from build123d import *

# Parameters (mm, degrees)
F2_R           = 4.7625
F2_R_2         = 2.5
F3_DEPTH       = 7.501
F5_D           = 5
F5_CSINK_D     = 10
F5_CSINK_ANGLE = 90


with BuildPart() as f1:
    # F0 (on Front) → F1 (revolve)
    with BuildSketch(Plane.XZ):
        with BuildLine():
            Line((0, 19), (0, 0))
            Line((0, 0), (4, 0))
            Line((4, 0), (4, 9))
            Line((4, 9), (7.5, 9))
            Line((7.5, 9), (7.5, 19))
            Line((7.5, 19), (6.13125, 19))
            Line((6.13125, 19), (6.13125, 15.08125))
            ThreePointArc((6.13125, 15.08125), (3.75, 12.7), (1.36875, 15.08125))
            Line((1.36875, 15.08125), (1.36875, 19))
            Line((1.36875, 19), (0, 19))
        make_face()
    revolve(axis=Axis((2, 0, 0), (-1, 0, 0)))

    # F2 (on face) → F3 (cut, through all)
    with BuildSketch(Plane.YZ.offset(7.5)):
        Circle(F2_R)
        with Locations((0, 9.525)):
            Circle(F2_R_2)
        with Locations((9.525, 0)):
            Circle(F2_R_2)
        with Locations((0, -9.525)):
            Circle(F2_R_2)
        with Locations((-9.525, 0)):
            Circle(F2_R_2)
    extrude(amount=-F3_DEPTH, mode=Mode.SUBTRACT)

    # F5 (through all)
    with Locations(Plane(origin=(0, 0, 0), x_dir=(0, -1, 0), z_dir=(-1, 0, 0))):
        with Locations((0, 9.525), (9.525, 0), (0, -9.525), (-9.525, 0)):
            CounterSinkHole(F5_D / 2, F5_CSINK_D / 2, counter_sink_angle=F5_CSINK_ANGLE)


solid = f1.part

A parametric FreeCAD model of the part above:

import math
import FreeCAD as App
import Part
import Sketcher
from FreeCAD import Vector
Q = App.Units.Quantity

doc = App.newDocument("Part")
body = doc.addObject("PartDesign::Body", "Body")

# Sketch on XZ plane
sketch1 = body.newObject("Sketcher::SketchObject", "Sketch")
sketch1.AttachmentSupport = (doc.getObject("XZ_Plane"), [""])
sketch1.MapMode = "FlatFace"
sketch1.addGeometry(Part.LineSegment(Vector(0, 19, 0), Vector(0, 0, 0)), False)
sketch1.addGeometry(Part.LineSegment(Vector(0, 0, 0), Vector(4, 0, 0)), False)
sketch1.addGeometry(Part.LineSegment(Vector(4, 0, 0), Vector(4, 9, 0)), False)
sketch1.addGeometry(Part.LineSegment(Vector(4, 9, 0), Vector(7.5, 9, 0)), False)
sketch1.addGeometry(Part.LineSegment(Vector(7.5, 9, 0), Vector(7.5, 19, 0)), False)
sketch1.addGeometry(Part.LineSegment(Vector(7.5, 19, 0), Vector(6.1, 19, 0)), False)
sketch1.addGeometry(Part.LineSegment(Vector(6.1, 19, 0), Vector(6.1, 15.1, 0)), False)
sketch1.addGeometry(Part.ArcOfCircle(Part.Circle(Vector(3.8, 15.1, 0), Vector(0, 0, 1), 2.4), math.radians(180), math.radians(360)), False)
sketch1.addGeometry(Part.LineSegment(Vector(1.4, 15.1, 0), Vector(1.4, 19, 0)), False)
sketch1.addGeometry(Part.LineSegment(Vector(1.4, 19, 0), Vector(0, 19, 0)), False)
sketch1.addConstraint(Sketcher.Constraint("Coincident", 0, 2, 1, 1))
sketch1.addConstraint(Sketcher.Constraint("Coincident", 1, 2, 2, 1))
sketch1.addConstraint(Sketcher.Constraint("Coincident", 2, 2, 3, 1))
sketch1.addConstraint(Sketcher.Constraint("Coincident", 3, 2, 4, 1))
sketch1.addConstraint(Sketcher.Constraint("Coincident", 4, 2, 5, 1))
sketch1.addConstraint(Sketcher.Constraint("Coincident", 5, 2, 6, 1))
sketch1.addConstraint(Sketcher.Constraint("Tangent", 6, 2, 7, 2))
sketch1.addConstraint(Sketcher.Constraint("Tangent", 7, 1, 8, 1))
sketch1.addConstraint(Sketcher.Constraint("Coincident", 8, 2, 9, 1))
sketch1.addConstraint(Sketcher.Constraint("Coincident", 9, 2, 0, 1))
sketch1.addConstraint(Sketcher.Constraint("Vertical", 0))
sketch1.addConstraint(Sketcher.Constraint("Horizontal", 1))
sketch1.addConstraint(Sketcher.Constraint("Vertical", 2))
sketch1.addConstraint(Sketcher.Constraint("Horizontal", 3))
sketch1.addConstraint(Sketcher.Constraint("Vertical", 4))
sketch1.addConstraint(Sketcher.Constraint("Horizontal", 5))
sketch1.addConstraint(Sketcher.Constraint("Vertical", 6))
sketch1.addConstraint(Sketcher.Constraint("Vertical", 8))
sketch1.addConstraint(Sketcher.Constraint("Horizontal", 9))
sketch1.addConstraint(Sketcher.Constraint("Coincident", 0, 2, -1, 1))
sketch1.addConstraint(Sketcher.Constraint("Horizontal", 5, 2, 8, 2))
sketch1.addConstraint(Sketcher.Constraint("Equal", 5, 9))
sketch1.addConstraint(Sketcher.Constraint("DistanceX", 1, 1, 1, 2, Q("4 mm")))
sketch1.addConstraint(Sketcher.Constraint("DistanceY", 0, 2, 0, 1, Q("19 mm")))
sketch1.addConstraint(Sketcher.Constraint("DistanceY", 2, 1, 2, 2, Q("9 mm")))
sketch1.addConstraint(Sketcher.Constraint("DistanceX", 3, 1, 3, 2, Q("3.5 mm")))
sketch1.addConstraint(Sketcher.Constraint("Radius", 7, Q("2.38125 mm")))
sketch1.addConstraint(Sketcher.Constraint("DistanceY", 6, 2, 6, 1, Q("3.91875 mm")))
revolution = body.newObject("PartDesign::Revolution", "Revolution")
revolution.Profile = sketch1
revolution.ReferenceAxis = (sketch1, ["H_Axis"])
revolution.Angle = 360

# Sketch on YZ plane
sketch2 = body.newObject("Sketcher::SketchObject", "Sketch001")
sketch2.AttachmentSupport = (doc.getObject("YZ_Plane"), [""])
sketch2.MapMode = "FlatFace"
sketch2.AttachmentOffset = App.Placement(Vector(0, 0, 7.5), App.Rotation())
sketch2.addGeometry(Part.Circle(Vector(0, 0, 0), Vector(0, 0, 1), 4.8), False)
sketch2.addGeometry(Part.Circle(Vector(0, 9.5, 0), Vector(0, 0, 1), 2.5), False)
sketch2.addGeometry(Part.Circle(Vector(9.5, 0, 0), Vector(0, 0, 1), 2.5), False)
sketch2.addGeometry(Part.Circle(Vector(0, -9.5, 0), Vector(0, 0, 1), 2.5), False)
sketch2.addGeometry(Part.Circle(Vector(-9.5, 0, 0), Vector(0, 0, 1), 2.5), False)
sketch2.addConstraint(Sketcher.Constraint("Coincident", 0, 3, -1, 1))
sketch2.addConstraint(Sketcher.Constraint("Equal", 1, 2))
sketch2.addConstraint(Sketcher.Constraint("Equal", 2, 3))
sketch2.addConstraint(Sketcher.Constraint("Equal", 3, 4))
sketch2.addConstraint(Sketcher.Constraint("Symmetric", 1, 3, 3, 3, -1, 1))
sketch2.addConstraint(Sketcher.Constraint("Symmetric", 2, 3, 4, 3, -1, 1))
sketch2.addConstraint(Sketcher.Constraint("PointOnObject", 1, 3, -2))
sketch2.addConstraint(Sketcher.Constraint("PointOnObject", 2, 3, -1))
sketch2.addConstraint(Sketcher.Constraint("Diameter", 1, Q("5 mm")))
sketch2.addConstraint(Sketcher.Constraint("Diameter", 0, Q("9.525 mm")))
sketch2.addConstraint(Sketcher.Constraint("DistanceY", 3, 3, 1, 3, Q("19.05 mm")))
sketch2.addConstraint(Sketcher.Constraint("DistanceX", 4, 3, 2, 3, Q("19.05 mm")))
pocket1 = body.newObject("PartDesign::Pocket", "Pocket")
pocket1.Profile = sketch2
pocket1.Type = "ThroughAll"

# Sketch on YZ plane
sketch3 = body.newObject("Sketcher::SketchObject", "Sketch002")
sketch3.AttachmentSupport = (doc.getObject("YZ_Plane"), [""])
sketch3.MapMode = "FlatFace"
sketch3.addGeometry(Part.Circle(Vector(0, 9.5, 0), Vector(0, 0, 1), 2.5), False)
sketch3.addGeometry(Part.Circle(Vector(-9.5, 0, 0), Vector(0, 0, 1), 2.5), False)
sketch3.addGeometry(Part.Circle(Vector(0, -9.5, 0), Vector(0, 0, 1), 2.5), False)
sketch3.addGeometry(Part.Circle(Vector(9.5, 0, 0), Vector(0, 0, 1), 2.5), False)
sketch3.addConstraint(Sketcher.Constraint("Equal", 0, 1))
sketch3.addConstraint(Sketcher.Constraint("Equal", 1, 2))
sketch3.addConstraint(Sketcher.Constraint("Equal", 2, 3))
sketch3.addConstraint(Sketcher.Constraint("Symmetric", 0, 3, 2, 3, -1, 1))
sketch3.addConstraint(Sketcher.Constraint("Symmetric", 1, 3, 3, 3, -1, 1))
sketch3.addConstraint(Sketcher.Constraint("PointOnObject", 0, 3, -2))
sketch3.addConstraint(Sketcher.Constraint("PointOnObject", 1, 3, -1))
sketch3.addConstraint(Sketcher.Constraint("Diameter", 0, Q("5 mm")))
sketch3.addConstraint(Sketcher.Constraint("DistanceY", 2, 3, 0, 3, Q("19.05 mm")))
sketch3.addConstraint(Sketcher.Constraint("DistanceX", 1, 3, 3, 3, Q("19.05 mm")))
doc.recompute()
hole = body.newObject("PartDesign::Hole", "Hole")
hole.Profile = sketch3
hole.ThreadType = "None"
hole.Diameter = 5
hole.DepthType = "ThroughAll"
hole.HoleCutType = "Countersink"
hole.HoleCutDiameter = 10
hole.HoleCutCountersinkAngle = 90
hole.Reversed = True

doc.recompute()
